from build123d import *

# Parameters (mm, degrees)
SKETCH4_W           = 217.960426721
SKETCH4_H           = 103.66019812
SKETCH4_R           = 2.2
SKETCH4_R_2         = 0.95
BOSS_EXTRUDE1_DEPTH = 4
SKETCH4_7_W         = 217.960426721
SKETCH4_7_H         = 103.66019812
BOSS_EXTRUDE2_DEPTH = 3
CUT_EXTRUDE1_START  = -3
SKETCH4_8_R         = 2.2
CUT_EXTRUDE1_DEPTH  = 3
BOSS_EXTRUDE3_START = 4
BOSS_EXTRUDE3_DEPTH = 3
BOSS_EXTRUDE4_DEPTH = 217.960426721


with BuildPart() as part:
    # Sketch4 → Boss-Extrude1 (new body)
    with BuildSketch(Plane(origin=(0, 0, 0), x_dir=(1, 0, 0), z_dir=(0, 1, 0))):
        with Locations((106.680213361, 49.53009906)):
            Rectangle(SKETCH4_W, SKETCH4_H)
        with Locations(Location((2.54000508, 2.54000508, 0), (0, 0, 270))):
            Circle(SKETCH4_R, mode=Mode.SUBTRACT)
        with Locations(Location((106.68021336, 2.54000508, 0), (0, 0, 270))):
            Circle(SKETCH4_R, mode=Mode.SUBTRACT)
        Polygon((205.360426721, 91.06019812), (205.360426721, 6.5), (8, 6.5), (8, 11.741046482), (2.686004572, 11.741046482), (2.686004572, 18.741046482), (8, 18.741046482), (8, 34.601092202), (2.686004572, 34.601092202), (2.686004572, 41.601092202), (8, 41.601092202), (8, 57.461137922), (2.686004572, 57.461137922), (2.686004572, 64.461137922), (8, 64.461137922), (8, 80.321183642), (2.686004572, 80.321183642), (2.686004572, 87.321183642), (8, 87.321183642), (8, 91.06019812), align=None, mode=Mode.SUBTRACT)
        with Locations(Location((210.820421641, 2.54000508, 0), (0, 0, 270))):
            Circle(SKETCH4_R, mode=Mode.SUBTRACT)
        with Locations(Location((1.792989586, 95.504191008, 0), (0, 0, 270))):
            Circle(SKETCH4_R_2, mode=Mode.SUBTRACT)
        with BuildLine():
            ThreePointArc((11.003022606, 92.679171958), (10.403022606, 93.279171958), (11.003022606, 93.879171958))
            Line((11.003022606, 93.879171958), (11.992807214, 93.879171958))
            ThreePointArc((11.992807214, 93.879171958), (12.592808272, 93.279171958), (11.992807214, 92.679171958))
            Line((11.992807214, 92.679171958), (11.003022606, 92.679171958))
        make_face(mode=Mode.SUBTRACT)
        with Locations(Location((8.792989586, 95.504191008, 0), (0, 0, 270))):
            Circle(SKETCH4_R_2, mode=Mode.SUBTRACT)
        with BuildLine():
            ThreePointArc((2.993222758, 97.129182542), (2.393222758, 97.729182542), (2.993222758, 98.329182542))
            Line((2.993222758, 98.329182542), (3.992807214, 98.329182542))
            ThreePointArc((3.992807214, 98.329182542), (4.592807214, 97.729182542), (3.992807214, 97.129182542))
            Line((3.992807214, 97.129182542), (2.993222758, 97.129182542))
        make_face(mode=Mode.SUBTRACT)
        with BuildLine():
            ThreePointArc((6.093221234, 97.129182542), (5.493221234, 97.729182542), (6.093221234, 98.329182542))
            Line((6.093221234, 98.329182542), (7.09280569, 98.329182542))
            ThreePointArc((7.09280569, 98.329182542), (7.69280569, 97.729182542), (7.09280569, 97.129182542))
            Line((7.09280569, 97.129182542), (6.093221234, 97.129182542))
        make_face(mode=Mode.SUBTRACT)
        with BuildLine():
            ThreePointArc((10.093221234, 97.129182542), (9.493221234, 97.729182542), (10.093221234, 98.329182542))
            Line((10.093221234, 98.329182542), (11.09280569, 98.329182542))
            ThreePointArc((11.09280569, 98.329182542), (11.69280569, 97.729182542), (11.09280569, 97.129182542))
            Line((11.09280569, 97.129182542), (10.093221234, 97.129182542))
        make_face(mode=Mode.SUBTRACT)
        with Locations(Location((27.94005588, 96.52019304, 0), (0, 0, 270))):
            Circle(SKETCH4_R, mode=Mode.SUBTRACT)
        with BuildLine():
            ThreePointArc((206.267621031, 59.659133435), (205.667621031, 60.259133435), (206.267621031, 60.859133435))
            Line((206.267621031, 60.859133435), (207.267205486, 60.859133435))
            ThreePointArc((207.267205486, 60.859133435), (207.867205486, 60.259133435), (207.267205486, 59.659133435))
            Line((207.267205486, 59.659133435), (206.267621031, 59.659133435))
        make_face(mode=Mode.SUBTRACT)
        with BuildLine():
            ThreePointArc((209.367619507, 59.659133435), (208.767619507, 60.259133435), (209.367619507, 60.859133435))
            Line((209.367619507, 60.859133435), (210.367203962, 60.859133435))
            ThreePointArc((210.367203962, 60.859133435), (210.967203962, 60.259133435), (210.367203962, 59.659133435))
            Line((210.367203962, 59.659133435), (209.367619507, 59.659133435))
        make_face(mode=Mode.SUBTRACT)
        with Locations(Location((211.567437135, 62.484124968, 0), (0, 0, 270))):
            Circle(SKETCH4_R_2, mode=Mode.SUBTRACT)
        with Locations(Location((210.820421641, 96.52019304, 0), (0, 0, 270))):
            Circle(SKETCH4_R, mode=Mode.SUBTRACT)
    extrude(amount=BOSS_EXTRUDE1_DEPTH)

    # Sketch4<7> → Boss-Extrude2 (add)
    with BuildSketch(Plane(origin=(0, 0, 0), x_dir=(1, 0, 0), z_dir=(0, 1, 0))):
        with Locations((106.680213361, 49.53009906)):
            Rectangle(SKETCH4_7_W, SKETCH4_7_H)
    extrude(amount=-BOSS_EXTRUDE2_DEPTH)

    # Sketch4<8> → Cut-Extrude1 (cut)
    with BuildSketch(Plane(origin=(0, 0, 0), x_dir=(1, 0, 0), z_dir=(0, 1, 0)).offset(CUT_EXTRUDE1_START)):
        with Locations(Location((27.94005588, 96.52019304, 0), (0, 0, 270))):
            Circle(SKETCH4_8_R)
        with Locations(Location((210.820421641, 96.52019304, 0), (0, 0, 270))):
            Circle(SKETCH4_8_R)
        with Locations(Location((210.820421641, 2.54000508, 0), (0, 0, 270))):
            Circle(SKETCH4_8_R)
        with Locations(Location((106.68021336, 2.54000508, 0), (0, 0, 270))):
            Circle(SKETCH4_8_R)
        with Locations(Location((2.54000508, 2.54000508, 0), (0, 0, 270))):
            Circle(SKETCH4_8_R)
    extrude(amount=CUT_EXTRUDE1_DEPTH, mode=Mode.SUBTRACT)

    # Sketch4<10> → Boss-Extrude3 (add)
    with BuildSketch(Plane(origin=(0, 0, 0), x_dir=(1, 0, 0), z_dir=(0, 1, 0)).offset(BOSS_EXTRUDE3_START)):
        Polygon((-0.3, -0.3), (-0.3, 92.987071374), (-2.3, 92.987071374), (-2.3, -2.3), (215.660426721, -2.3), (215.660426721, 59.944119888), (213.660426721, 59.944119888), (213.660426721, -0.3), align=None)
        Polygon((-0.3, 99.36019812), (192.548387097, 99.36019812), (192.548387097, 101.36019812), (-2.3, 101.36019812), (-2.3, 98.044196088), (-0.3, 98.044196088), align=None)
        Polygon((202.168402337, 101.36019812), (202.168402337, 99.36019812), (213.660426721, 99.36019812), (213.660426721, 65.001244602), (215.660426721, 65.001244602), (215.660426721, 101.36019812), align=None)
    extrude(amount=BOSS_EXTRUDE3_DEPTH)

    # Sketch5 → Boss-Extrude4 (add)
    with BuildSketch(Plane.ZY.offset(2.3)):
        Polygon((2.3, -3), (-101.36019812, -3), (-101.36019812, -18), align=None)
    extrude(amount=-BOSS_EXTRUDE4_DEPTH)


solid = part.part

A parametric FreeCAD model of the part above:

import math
import FreeCAD as App
import Part
import Sketcher

doc = App.newDocument("Part")
body = doc.addObject("PartDesign::Body", "Body")

# Sketch on XZ plane
sketch1 = body.newObject("Sketcher::SketchObject", "Sketch")
sketch1.AttachmentSupport = (doc.getObject("XZ_Plane"), [""])
sketch1.MapMode = "FlatFace"
sketch1.addGeometry([
    Part.LineSegment(App.Vector(-2.3, -101.4, 0), App.Vector(-2.3, 2.3, 0)),  # 0
    Part.LineSegment(App.Vector(-2.3, 2.3, 0), App.Vector(215.7, 2.3, 0)),  # 1
    Part.LineSegment(App.Vector(215.7, 2.3, 0), App.Vector(215.7, -101.4, 0)),  # 2
    Part.LineSegment(App.Vector(215.7, -101.4, 0), App.Vector(-2.3, -101.4, 0)),  # 3
    Part.Circle(App.Vector(2.5, -2.5, 0), App.Vector(0, 0, 1), 2.2),  # 4
    Part.Circle(App.Vector(106.7, -2.5, 0), App.Vector(0, 0, 1), 2.2),  # 5
    Part.LineSegment(App.Vector(8, -91.1, 0), App.Vector(205.4, -91.1, 0)),  # 6
    Part.LineSegment(App.Vector(205.4, -91.1, 0), App.Vector(205.4, -6.5, 0)),  # 7
    Part.LineSegment(App.Vector(205.4, -6.5, 0), App.Vector(8, -6.5, 0)),  # 8
    Part.LineSegment(App.Vector(8, -6.5, 0), App.Vector(8, -11.7, 0)),  # 9
    Part.LineSegment(App.Vector(8, -11.7, 0), App.Vector(2.7, -11.7, 0)),  # 10
    Part.LineSegment(App.Vector(2.7, -11.7, 0), App.Vector(2.7, -18.7, 0)),  # 11
    Part.LineSegment(App.Vector(2.7, -18.7, 0), App.Vector(8, -18.7, 0)),  # 12
    Part.LineSegment(App.Vector(8, -18.7, 0), App.Vector(8, -34.6, 0)),  # 13
    Part.LineSegment(App.Vector(8, -34.6, 0), App.Vector(2.7, -34.6, 0)),  # 14
    Part.LineSegment(App.Vector(2.7, -34.6, 0), App.Vector(2.7, -41.6, 0)),  # 15
    Part.LineSegment(App.Vector(2.7, -41.6, 0), App.Vector(8, -41.6, 0)),  # 16
    Part.LineSegment(App.Vector(8, -41.6, 0), App.Vector(8, -57.5, 0)),  # 17
    Part.LineSegment(App.Vector(8, -57.5, 0), App.Vector(2.7, -57.5, 0)),  # 18
    Part.LineSegment(App.Vector(2.7, -57.5, 0), App.Vector(2.7, -64.5, 0)),  # 19
    Part.LineSegment(App.Vector(2.7, -64.5, 0), App.Vector(8, -64.5, 0)),  # 20
    Part.LineSegment(App.Vector(8, -64.5, 0), App.Vector(8, -80.3, 0)),  # 21
    Part.LineSegment(App.Vector(8, -80.3, 0), App.Vector(2.7, -80.3, 0)),  # 22
    Part.LineSegment(App.Vector(2.7, -80.3, 0), App.Vector(2.7, -87.3, 0)),  # 23
    Part.LineSegment(App.Vector(2.7, -87.3, 0), App.Vector(8, -87.3, 0)),  # 24
    Part.LineSegment(App.Vector(8, -87.3, 0), App.Vector(8, -91.1, 0)),  # 25
    Part.Circle(App.Vector(210.8, -2.5, 0), App.Vector(0, 0, 1), 2.2),  # 26
    Part.Circle(App.Vector(1.8, -95.5, 0), App.Vector(0, 0, 1), 0.9),  # 27
    Part.LineSegment(App.Vector(12, -92.7, 0), App.Vector(11, -92.7, 0)),  # 28
    Part.ArcOfCircle(Part.Circle(App.Vector(11, -93.3, 0), App.Vector(0, 0, 1), 0.6), math.radians(90), math.radians(270)),  # 29
    Part.LineSegment(App.Vector(11, -93.9, 0), App.Vector(12, -93.9, 0)),  # 30
    Part.ArcOfCircle(Part.Circle(App.Vector(12, -93.3, 0), App.Vector(0, 0, 1), 0.6), math.radians(-90), math.radians(90)),  # 31
    Part.Circle(App.Vector(8.8, -95.5, 0), App.Vector(0, 0, 1), 0.9),  # 32
    Part.LineSegment(App.Vector(4, -97.1, 0), App.Vector(3, -97.1, 0)),  # 33
    Part.ArcOfCircle(Part.Circle(App.Vector(3, -97.7, 0), App.Vector(0, 0, 1), 0.6), math.radians(90), math.radians(270)),  # 34
    Part.LineSegment(App.Vector(3, -98.3, 0), App.Vector(4, -98.3, 0)),  # 35
    Part.ArcOfCircle(Part.Circle(App.Vector(4, -97.7, 0), App.Vector(0, 0, 1), 0.6), math.radians(-90), math.radians(90)),  # 36
    Part.LineSegment(App.Vector(7.1, -97.1, 0), App.Vector(6.1, -97.1, 0)),  # 37
    Part.ArcOfCircle(Part.Circle(App.Vector(6.1, -97.7, 0), App.Vector(0, 0, 1), 0.6), math.radians(90), math.radians(270)),  # 38
    Part.LineSegment(App.Vector(6.1, -98.3, 0), App.Vector(7.1, -98.3, 0)),  # 39
    Part.ArcOfCircle(Part.Circle(App.Vector(7.1, -97.7, 0), App.Vector(0, 0, 1), 0.6), math.radians(-90), math.radians(90)),  # 40
    Part.LineSegment(App.Vector(11.1, -97.1, 0), App.Vector(10.1, -97.1, 0)),  # 41
    Part.ArcOfCircle(Part.Circle(App.Vector(10.1, -97.7, 0), App.Vector(0, 0, 1), 0.6), math.radians(90), math.radians(270)),  # 42
    Part.LineSegment(App.Vector(10.1, -98.3, 0), App.Vector(11.1, -98.3, 0)),  # 43
    Part.ArcOfCircle(Part.Circle(App.Vector(11.1, -97.7, 0), App.Vector(0, 0, 1), 0.6), math.radians(-90), math.radians(90)),  # 44
    Part.Circle(App.Vector(27.9, -96.5, 0), App.Vector(0, 0, 1), 2.2),  # 45
    Part.LineSegment(App.Vector(207.3, -59.7, 0), App.Vector(206.3, -59.7, 0)),  # 46
    Part.ArcOfCircle(Part.Circle(App.Vector(206.3, -60.3, 0), App.Vector(0, 0, 1), 0.6), math.radians(90), math.radians(270)),  # 47
    Part.LineSegment(App.Vector(206.3, -60.9, 0), App.Vector(207.3, -60.9, 0)),  # 48
    Part.ArcOfCircle(Part.Circle(App.Vector(207.3, -60.3, 0), App.Vector(0, 0, 1), 0.6), math.radians(-90), math.radians(90)),  # 49
    Part.LineSegment(App.Vector(210.4, -59.7, 0), App.Vector(209.4, -59.7, 0)),  # 50
    Part.ArcOfCircle(Part.Circle(App.Vector(209.4, -60.3, 0), App.Vector(0, 0, 1), 0.6), math.radians(90), math.radians(270)),  # 51
    Part.LineSegment(App.Vector(209.4, -60.9, 0), App.Vector(210.4, -60.9, 0)),  # 52
    Part.ArcOfCircle(Part.Circle(App.Vector(210.4, -60.3, 0), App.Vector(0, 0, 1), 0.6), math.radians(-90), math.radians(90)),  # 53
    Part.Circle(App.Vector(211.6, -62.5, 0), App.Vector(0, 0, 1), 0.9),  # 54
    Part.Circle(App.Vector(210.8, -96.5, 0), App.Vector(0, 0, 1), 2.2),  # 55
], False)
sketch1.addConstraint([
    Sketcher.Constraint("Coincident", 0, 2, 1, 1),
    Sketcher.Constraint("Coincident", 1, 2, 2, 1),
    Sketcher.Constraint("Coincident", 2, 2, 3, 1),
    Sketcher.Constraint("Coincident", 3, 2, 0, 1),
    Sketcher.Constraint("Coincident", 6, 2, 7, 1),
    Sketcher.Constraint("Coincident", 7, 2, 8, 1),
    Sketcher.Constraint("Coincident", 8, 2, 9, 1),
    Sketcher.Constraint("Coincident", 9, 2, 10, 1),
    Sketcher.Constraint("Coincident", 10, 2, 11, 1),
    Sketcher.Constraint("Coincident", 11, 2, 12, 1),
    Sketcher.Constraint("Coincident", 12, 2, 13, 1),
    Sketcher.Constraint("Coincident", 13, 2, 14, 1),
    Sketcher.Constraint("Coincident", 14, 2, 15, 1),
    Sketcher.Constraint("Coincident", 15, 2, 16, 1),
    Sketcher.Constraint("Coincident", 16, 2, 17, 1),
    Sketcher.Constraint("Coincident", 17, 2, 18, 1),
    Sketcher.Constraint("Coincident", 18, 2, 19, 1),
    Sketcher.Constraint("Coincident", 19, 2, 20, 1),
    Sketcher.Constraint("Coincident", 20, 2, 21, 1),
    Sketcher.Constraint("Coincident", 21, 2, 22, 1),
    Sketcher.Constraint("Coincident", 22, 2, 23, 1),
    Sketcher.Constraint("Coincident", 23, 2, 24, 1),
    Sketcher.Constraint("Coincident", 24, 2, 25, 1),
    Sketcher.Constraint("Coincident", 25, 2, 6, 1),
    Sketcher.Constraint("Tangent", 28, 2, 29, 1),
    Sketcher.Constraint("Tangent", 29, 2, 30, 1),
    Sketcher.Constraint("Tangent", 30, 2, 31, 1),
    Sketcher.Constraint("Tangent", 31, 2, 28, 1),
    Sketcher.Constraint("Tangent", 33, 2, 34, 1),
    Sketcher.Constraint("Tangent", 34, 2, 35, 1),
    Sketcher.Constraint("Tangent", 35, 2, 36, 1),
    Sketcher.Constraint("Tangent", 36, 2, 33, 1),
    Sketcher.Constraint("Tangent", 37, 2, 38, 1),
    Sketcher.Constraint("Tangent", 38, 2, 39, 1),
    Sketcher.Constraint("Tangent", 39, 2, 40, 1),
    Sketcher.Constraint("Tangent", 40, 2, 37, 1),
    Sketcher.Constraint("Tangent", 41, 2, 42, 1),
    Sketcher.Constraint("Tangent", 42, 2, 43, 1),
    Sketcher.Constraint("Tangent", 43, 2, 44, 1),
    Sketcher.Constraint("Tangent", 44, 2, 41, 1),
    Sketcher.Constraint("Tangent", 46, 2, 47, 1),
    Sketcher.Constraint("Tangent", 47, 2, 48, 1),
    Sketcher.Constraint("Tangent", 48, 2, 49, 1),
    Sketcher.Constraint("Tangent", 49, 2, 46, 1),
    Sketcher.Constraint("Tangent", 50, 2, 51, 1),
    Sketcher.Constraint("Tangent", 51, 2, 52, 1),
    Sketcher.Constraint("Tangent", 52, 2, 53, 1),
    Sketcher.Constraint("Tangent", 53, 2, 50, 1),
    Sketcher.Constraint("Vertical", 0),
    Sketcher.Constraint("Horizontal", 1),
    Sketcher.Constraint("Vertical", 2),
    Sketcher.Constraint("Horizontal", 3),
    Sketcher.Constraint("Horizontal", 6),
    Sketcher.Constraint("Vertical", 7),
    Sketcher.Constraint("Horizontal", 8),
    Sketcher.Constraint("Vertical", 9),
    Sketcher.Constraint("Horizontal", 10),
    Sketcher.Constraint("Vertical", 11),
    Sketcher.Constraint("Horizontal", 12),
    Sketcher.Constraint("Vertical", 13),
    Sketcher.Constraint("Horizontal", 14),
    Sketcher.Constraint("Vertical", 15),
    Sketcher.Constraint("Horizontal", 16),
    Sketcher.Constraint("Vertical", 17),
    Sketcher.Constraint("Horizontal", 18),
    Sketcher.Constraint("Vertical", 19),
    Sketcher.Constraint("Horizontal", 20),
    Sketcher.Constraint("Vertical", 21),
    Sketcher.Constraint("Horizontal", 22),
    Sketcher.Constraint("Vertical", 23),
    Sketcher.Constraint("Horizontal", 24),
    Sketcher.Constraint("Vertical", 25),
    Sketcher.Constraint("Horizontal", 28),
    Sketcher.Constraint("Horizontal", 30),
    Sketcher.Constraint("Horizontal", 33),
    Sketcher.Constraint("Horizontal", 35),
    Sketcher.Constraint("Horizontal", 37),
    Sketcher.Constraint("Horizontal", 39),
    Sketcher.Constraint("Horizontal", 41),
    Sketcher.Constraint("Horizontal", 43),
    Sketcher.Constraint("Horizontal", 46),
    Sketcher.Constraint("Horizontal", 48),
    Sketcher.Constraint("Horizontal", 50),
    Sketcher.Constraint("Horizontal", 52),
    Sketcher.Constraint("Equal", 4, 5),
    Sketcher.Constraint("Equal", 5, 26),
    Sketcher.Constraint("Equal", 27, 32),
    Sketcher.Constraint("Equal", 31, 34),
    Sketcher.Constraint("Equal", 36, 38),
    Sketcher.Constraint("Equal", 40, 42),
    Sketcher.Constraint("Equal", 26, 45),
    Sketcher.Constraint("Equal", 44, 47),
    Sketcher.Constraint("Equal", 49, 51),
    Sketcher.Constraint("Equal", 32, 54),
    Sketcher.Constraint("Equal", 45, 55),
    Sketcher.Constraint("Horizontal", 4, 3, 5, 3),
    Sketcher.Constraint("Horizontal", 5, 3, 26, 3),
    Sketcher.Constraint("Horizontal", 27, 3, 32, 3),
    Sketcher.Constraint("Horizontal", 36, 3, 38, 3),
    Sketcher.Constraint("Horizontal", 40, 3, 42, 3),
    Sketcher.Constraint("Horizontal", 49, 3, 51, 3),
    Sketcher.Constraint("Horizontal", 45, 3, 55, 3),
    Sketcher.Constraint("Vertical", 26, 3, 55, 3),
    Sketcher.Constraint("Vertical", 9, 2, 12, 2),
    Sketcher.Constraint("Vertical", 11, 2, 14, 2),
    Sketcher.Constraint("Vertical", 13, 2, 16, 2),
    Sketcher.Constraint("Vertical", 15, 2, 18, 2),
    Sketcher.Constraint("Vertical", 17, 2, 20, 2),
    Sketcher.Constraint("Vertical", 19, 2, 22, 2),
    Sketcher.Constraint("Vertical", 21, 2, 24, 2),
    Sketcher.Constraint("Equal", 35, 37),
    Sketcher.Constraint("Equal", 39, 41),
    Sketcher.Constraint("Equal", 43, 46),
    Sketcher.Constraint("Equal", 48, 50),
    Sketcher.Constraint("Equal", 11, 15),
    Sketcher.Constraint("Equal", 13, 17),
    Sketcher.Constraint("Equal", 15, 19),
    Sketcher.Constraint("Equal", 17, 21),
    Sketcher.Constraint("Equal", 19, 23),
    Sketcher.Constraint("Diameter", 4, 4.4),
    Sketcher.Constraint("Diameter", 27, 1.9),
    Sketcher.Constraint("Radius", 29, 0.6),
    Sketcher.Constraint("DistanceY", 11, 2, 11, 1, 7.0),
    Sketcher.Constraint("DistanceX", -1, 1, 8, 2, 8.0),
    Sketcher.Constraint("DistanceX", 0, 2, -1, 1, 2.3),
    Sketcher.Constraint("DistanceY", -1, 1, 0, 2, 2.3),
    Sketcher.Constraint("DistanceY", 7, 2, -1, 1, 6.5),
    Sketcher.Constraint("DistanceY", 0, 1, 0, 2, 103.660198),
    Sketcher.Constraint("DistanceY", 7, 1, 7, 2, 84.560198),
    Sketcher.Constraint("DistanceX", 1, 1, 1, 2, 217.960427),
    Sketcher.Constraint("DistanceX", 6, 1, 6, 2, 197.360427),
    Sketcher.Constraint("DistanceX", 10, 2, 10, 1, 5.313995),
    Sketcher.Constraint("DistanceX", 28, 2, 28, 1, 0.989785),
    Sketcher.Constraint("DistanceX", 33, 2, 33, 1, 0.999584),
    Sketcher.Constraint("DistanceY", 9, 2, 9, 1, 5.241046),
    Sketcher.Constraint("DistanceY", 13, 2, 13, 1, 15.860046),
    Sketcher.Constraint("DistanceX", -1, 1, 26, 3, 210.820422),
    Sketcher.Constraint("DistanceX", -1, 1, 27, 3, 1.79299),
    Sketcher.Constraint("DistanceY", 27, 3, -1, 1, 95.504191),
    Sketcher.Constraint("DistanceY", 29, 3, -1, 1, 93.279172),
    Sketcher.Constraint("DistanceX", -1, 1, 31, 3, 11.992808),
    Sketcher.Constraint("DistanceX", -1, 1, 32, 3, 8.79299),
    Sketcher.Constraint("DistanceX", -1, 1, 38, 3, 6.093221),
    Sketcher.Constraint("DistanceX", -1, 1, 42, 3, 10.093221),
    Sketcher.Constraint("DistanceX", -1, 1, 47, 3, 206.267621),
    Sketcher.Constraint("DistanceX", -1, 1, 51, 3, 209.36762),
    Sketcher.Constraint("DistanceX", -1, 1, 4, 3, 2.540005),
    Sketcher.Constraint("DistanceY", 4, 3, -1, 1, 2.540005),
    Sketcher.Constraint("DistanceX", -1, 1, 5, 3, 106.680213),
    Sketcher.Constraint("DistanceX", -1, 1, 34, 3, 2.993223),
    Sketcher.Constraint("DistanceY", 34, 3, -1, 1, 97.729183),
    Sketcher.Constraint("DistanceX", -1, 1, 45, 3, 27.940056),
    Sketcher.Constraint("DistanceY", 45, 3, -1, 1, 96.520193),
    Sketcher.Constraint("DistanceY", 47, 3, -1, 1, 60.259133),
    Sketcher.Constraint("DistanceX", -1, 1, 54, 3, 211.567437),
    Sketcher.Constraint("DistanceY", 54, 3, -1, 1, 62.484125),
])
pad1 = body.newObject("PartDesign::Pad", "Pad")
pad1.Profile = sketch1
pad1.Length = 4
pad1.Reversed = True

# Sketch on XZ plane
sketch2 = body.newObject("Sketcher::SketchObject", "Sketch001")
sketch2.AttachmentSupport = (doc.getObject("XZ_Plane"), [""])
sketch2.MapMode = "FlatFace"
sketch2.addGeometry([
    Part.LineSegment(App.Vector(-2, -101, 0), App.Vector(-2, 2, 0)),
    Part.LineSegment(App.Vector(-2, 2, 0), App.Vector(216, 2, 0)),
    Part.LineSegment(App.Vector(216, 2, 0), App.Vector(216, -101, 0)),
    Part.LineSegment(App.Vector(216, -101, 0), App.Vector(-2, -101, 0)),
], False)
sketch2.addConstraint([
    Sketcher.Constraint("Coincident", 0, 2, 1, 1),
    Sketcher.Constraint("Coincident", 1, 2, 2, 1),
    Sketcher.Constraint("Coincident", 2, 2, 3, 1),
    Sketcher.Constraint("Coincident", 3, 2, 0, 1),
    Sketcher.Constraint("Vertical", 0),
    Sketcher.Constraint("Horizontal", 1),
    Sketcher.Constraint("Vertical", 2),
    Sketcher.Constraint("Horizontal", 3),
    Sketcher.Constraint("DistanceX", 0, 2, -1, 1, 2.3),
    Sketcher.Constraint("DistanceY", -1, 1, 0, 2, 2.3),
    Sketcher.Constraint("DistanceY", 0, 1, 0, 2, 103.660198),
    Sketcher.Constraint("DistanceX", 1, 1, 1, 2, 217.960427),
])
pad2 = body.newObject("PartDesign::Pad", "Pad001")
pad2.Profile = sketch2
pad2.Length = 3

# Sketch on XZ plane
sketch3 = body.newObject("Sketcher::SketchObject", "Sketch002")
sketch3.AttachmentSupport = (doc.getObject("XZ_Plane"), [""])
sketch3.MapMode = "FlatFace"
sketch3.AttachmentOffset = App.Placement(App.Vector(0, 0, 3), App.Rotation())
sketch3.addGeometry([
    Part.Circle(App.Vector(27.9, -96.5, 0), App.Vector(0, 0, 1), 2.2),  # 0
    Part.Circle(App.Vector(210.8, -96.5, 0), App.Vector(0, 0, 1), 2.2),  # 1
    Part.Circle(App.Vector(210.8, -2.5, 0), App.Vector(0, 0, 1), 2.2),  # 2
    Part.Circle(App.Vector(106.7, -2.5, 0), App.Vector(0, 0, 1), 2.2),  # 3
    Part.Circle(App.Vector(2.5, -2.5, 0), App.Vector(0, 0, 1), 2.2),  # 4
], False)
sketch3.addConstraint([
    Sketcher.Constraint("Equal", 0, 1),
    Sketcher.Constraint("Equal", 1, 2),
    Sketcher.Constraint("Equal", 2, 3),
    Sketcher.Constraint("Equal", 3, 4),
    Sketcher.Constraint("Horizontal", 0, 3, 1, 3),
    Sketcher.Constraint("Horizontal", 2, 3, 3, 3),
    Sketcher.Constraint("Horizontal", 3, 3, 4, 3),
    Sketcher.Constraint("Vertical", 1, 3, 2, 3),
    Sketcher.Constraint("Diameter", 0, 4.4),
    Sketcher.Constraint("DistanceX", -1, 1, 1, 3, 210.820422),
    Sketcher.Constraint("DistanceX", 3, 3, 2, 3, 104.140208),
    Sketcher.Constraint("DistanceX", 4, 3, 0, 3, 25.400051),
    Sketcher.Constraint("DistanceX", 4, 3, 3, 3, 104.140208),
    Sketcher.Constraint("DistanceY", 0, 3, -1, 1, 96.520193),
    Sketcher.Constraint("DistanceY", 2, 3, -1, 1, 2.540005),
])
pocket1 = body.newObject("PartDesign::Pocket", "Pocket")
pocket1.Profile = sketch3
pocket1.Length = 3

# Sketch on XZ plane
sketch4 = body.newObject("Sketcher::SketchObject", "Sketch003")
sketch4.AttachmentSupport = (doc.getObject("XZ_Plane"), [""])
sketch4.MapMode = "FlatFace"
sketch4.AttachmentOffset = App.Placement(App.Vector(0, 0, -4), App.Rotation())
sketch4.addGeometry([
    Part.LineSegment(App.Vector(-0.3, 0.3, 0), App.Vector(-0.3, -93, 0)),  # 0
    Part.LineSegment(App.Vector(-0.3, -93, 0), App.Vector(-2.3, -93, 0)),  # 1
    Part.LineSegment(App.Vector(-2.3, -93, 0), App.Vector(-2.3, 2.3, 0)),  # 2
    Part.LineSegment(App.Vector(-2.3, 2.3, 0), App.Vector(215.7, 2.3, 0)),  # 3
    Part.LineSegment(App.Vector(215.7, 2.3, 0), App.Vector(215.7, -59.9, 0)),  # 4
    Part.LineSegment(App.Vector(215.7, -59.9, 0), App.Vector(213.7, -59.9, 0)),  # 5
    Part.LineSegment(App.Vector(213.7, -59.9, 0), App.Vector(213.7, 0.3, 0)),  # 6
    Part.LineSegment(App.Vector(213.7, 0.3, 0), App.Vector(-0.3, 0.3, 0)),  # 7
    Part.LineSegment(App.Vector(-0.3, -99.4, 0), App.Vector(192.5, -99.4, 0)),  # 8
    Part.LineSegment(App.Vector(192.5, -99.4, 0), App.Vector(192.5, -101.4, 0)),  # 9
    Part.LineSegment(App.Vector(192.5, -101.4, 0), App.Vector(-2.3, -101.4, 0)),  # 10
    Part.LineSegment(App.Vector(-2.3, -101.4, 0), App.Vector(-2.3, -98, 0)),  # 11
    Part.LineSegment(App.Vector(-2.3, -98, 0), App.Vector(-0.3, -98, 0)),  # 12
    Part.LineSegment(App.Vector(-0.3, -98, 0), App.Vector(-0.3, -99.4, 0)),  # 13
    Part.LineSegment(App.Vector(202.2, -101.4, 0), App.Vector(202.2, -99.4, 0)),  # 14
    Part.LineSegment(App.Vector(202.2, -99.4, 0), App.Vector(213.7, -99.4, 0)),  # 15
    Part.LineSegment(App.Vector(213.7, -99.4, 0), App.Vector(213.7, -65, 0)),  # 16
    Part.LineSegment(App.Vector(213.7, -65, 0), App.Vector(215.7, -65, 0)),  # 17
    Part.LineSegment(App.Vector(215.7, -65, 0), App.Vector(215.7, -101.4, 0)),  # 18
    Part.LineSegment(App.Vector(215.7, -101.4, 0), App.Vector(202.2, -101.4, 0)),  # 19
], False)
sketch4.addConstraint([
    Sketcher.Constraint("Coincident", 0, 2, 1, 1),
    Sketcher.Constraint("Coincident", 1, 2, 2, 1),
    Sketcher.Constraint("Coincident", 2, 2, 3, 1),
    Sketcher.Constraint("Coincident", 3, 2, 4, 1),
    Sketcher.Constraint("Coincident", 4, 2, 5, 1),
    Sketcher.Constraint("Coincident", 5, 2, 6, 1),
    Sketcher.Constraint("Coincident", 6, 2, 7, 1),
    Sketcher.Constraint("Coincident", 7, 2, 0, 1),
    Sketcher.Constraint("Coincident", 8, 2, 9, 1),
    Sketcher.Constraint("Coincident", 9, 2, 10, 1),
    Sketcher.Constraint("Coincident", 10, 2, 11, 1),
    Sketcher.Constraint("Coincident", 11, 2, 12, 1),
    Sketcher.Constraint("Coincident", 12, 2, 13, 1),
    Sketcher.Constraint("Coincident", 13, 2, 8, 1),
    Sketcher.Constraint("Coincident", 14, 2, 15, 1),
    Sketcher.Constraint("Coincident", 15, 2, 16, 1),
    Sketcher.Constraint("Coincident", 16, 2, 17, 1),
    Sketcher.Constraint("Coincident", 17, 2, 18, 1),
    Sketcher.Constraint("Coincident", 18, 2, 19, 1),
    Sketcher.Constraint("Coincident", 19, 2, 14, 1),
    Sketcher.Constraint("Vertical", 0),
    Sketcher.Constraint("Horizontal", 1),
    Sketcher.Constraint("Vertical", 2),
    Sketcher.Constraint("Horizontal", 3),
    Sketcher.Constraint("Vertical", 4),
    Sketcher.Constraint("Horizontal", 5),
    Sketcher.Constraint("Vertical", 6),
    Sketcher.Constraint("Horizontal", 7),
    Sketcher.Constraint("Horizontal", 8),
    Sketcher.Constraint("Vertical", 9),
    Sketcher.Constraint("Horizontal", 10),
    Sketcher.Constraint("Vertical", 11),
    Sketcher.Constraint("Horizontal", 12),
    Sketcher.Constraint("Vertical", 13),
    Sketcher.Constraint("Vertical", 14),
    Sketcher.Constraint("Horizontal", 15),
    Sketcher.Constraint("Vertical", 16),
    Sketcher.Constraint("Horizontal", 17),
    Sketcher.Constraint("Vertical", 18),
    Sketcher.Constraint("Horizontal", 19),
    Sketcher.Constraint("Horizontal", 13, 2, 14, 2),
    Sketcher.Constraint("Horizontal", 10, 2, 18, 2),
    Sketcher.Constraint("Vertical", 2, 2, 10, 2),
    Sketcher.Constraint("Vertical", 7, 2, 12, 2),
    Sketcher.Constraint("Vertical", 6, 2, 15, 2),
    Sketcher.Constraint("Vertical", 4, 2, 17, 2),
    Sketcher.Constraint("Equal", 1, 5),
    Sketcher.Constraint("Equal", 17, 9),
    Sketcher.Constraint("DistanceX", 1, 2, 1, 1, 2.0),
    Sketcher.Constraint("DistanceY", 6, 2, 3, 2, 2.0),
    Sketcher.Constraint("DistanceX", 0, 2, -1, 1, 0.3),
    Sketcher.Constraint("DistanceY", -1, 1, 2, 2, 2.3),
    Sketcher.Constraint("DistanceY", 0, 2, 0, 1, 93.287071),
    Sketcher.Constraint("DistanceY", 4, 2, 4, 1, 62.24412),
    Sketcher.Constraint("DistanceY", 8, 2, -1, 1, 99.360198),
    Sketcher.Constraint("DistanceX", 3, 1, 3, 2, 217.960427),
    Sketcher.Constraint("DistanceX", 8, 1, 8, 2, 192.848387),
    Sketcher.Constraint("DistanceX", 15, 1, 15, 2, 11.492024),
    Sketcher.Constraint("DistanceY", 11, 1, 11, 2, 3.316002),
    Sketcher.Constraint("DistanceY", 16, 1, 16, 2, 34.358954),
])
pad3 = body.newObject("PartDesign::Pad", "Pad002")
pad3.Profile = sketch4
pad3.Length = 3
pad3.Reversed = True

# Sketch on YZ plane
sketch5 = body.newObject("Sketcher::SketchObject", "Sketch004")
sketch5.AttachmentSupport = (doc.getObject("YZ_Plane"), [""])
sketch5.MapMode = "FlatFace"
sketch5.AttachmentOffset = App.Placement(App.Vector(0, 0, -2.3), App.Rotation())
sketch5.addGeometry([
    Part.LineSegment(App.Vector(-3, 2, 0), App.Vector(-3, -101, 0)),
    Part.LineSegment(App.Vector(-3, -101, 0), App.Vector(-18, -101, 0)),
    Part.LineSegment(App.Vector(-18, -101, 0), App.Vector(-3, 2, 0)),
], False)
sketch5.addConstraint([
    Sketcher.Constraint("Coincident", 0, 2, 1, 1),
    Sketcher.Constraint("Coincident", 1, 2, 2, 1),
    Sketcher.Constraint("Coincident", 2, 2, 0, 1),
    Sketcher.Constraint("Vertical", 0),
    Sketcher.Constraint("Horizontal", 1),
    Sketcher.Constraint("DistanceX", 1, 2, 1, 1, 15.0),
    Sketcher.Constraint("DistanceX", 0, 2, -1, 1, 3.0),
    Sketcher.Constraint("DistanceY", -1, 1, 2, 2, 2.3),
    Sketcher.Constraint("DistanceY", 0, 2, 0, 1, 103.660198),
])
pad4 = body.newObject("PartDesign::Pad", "Pad003")
pad4.Profile = sketch5
pad4.Length = 217.960427

doc.recompute()
